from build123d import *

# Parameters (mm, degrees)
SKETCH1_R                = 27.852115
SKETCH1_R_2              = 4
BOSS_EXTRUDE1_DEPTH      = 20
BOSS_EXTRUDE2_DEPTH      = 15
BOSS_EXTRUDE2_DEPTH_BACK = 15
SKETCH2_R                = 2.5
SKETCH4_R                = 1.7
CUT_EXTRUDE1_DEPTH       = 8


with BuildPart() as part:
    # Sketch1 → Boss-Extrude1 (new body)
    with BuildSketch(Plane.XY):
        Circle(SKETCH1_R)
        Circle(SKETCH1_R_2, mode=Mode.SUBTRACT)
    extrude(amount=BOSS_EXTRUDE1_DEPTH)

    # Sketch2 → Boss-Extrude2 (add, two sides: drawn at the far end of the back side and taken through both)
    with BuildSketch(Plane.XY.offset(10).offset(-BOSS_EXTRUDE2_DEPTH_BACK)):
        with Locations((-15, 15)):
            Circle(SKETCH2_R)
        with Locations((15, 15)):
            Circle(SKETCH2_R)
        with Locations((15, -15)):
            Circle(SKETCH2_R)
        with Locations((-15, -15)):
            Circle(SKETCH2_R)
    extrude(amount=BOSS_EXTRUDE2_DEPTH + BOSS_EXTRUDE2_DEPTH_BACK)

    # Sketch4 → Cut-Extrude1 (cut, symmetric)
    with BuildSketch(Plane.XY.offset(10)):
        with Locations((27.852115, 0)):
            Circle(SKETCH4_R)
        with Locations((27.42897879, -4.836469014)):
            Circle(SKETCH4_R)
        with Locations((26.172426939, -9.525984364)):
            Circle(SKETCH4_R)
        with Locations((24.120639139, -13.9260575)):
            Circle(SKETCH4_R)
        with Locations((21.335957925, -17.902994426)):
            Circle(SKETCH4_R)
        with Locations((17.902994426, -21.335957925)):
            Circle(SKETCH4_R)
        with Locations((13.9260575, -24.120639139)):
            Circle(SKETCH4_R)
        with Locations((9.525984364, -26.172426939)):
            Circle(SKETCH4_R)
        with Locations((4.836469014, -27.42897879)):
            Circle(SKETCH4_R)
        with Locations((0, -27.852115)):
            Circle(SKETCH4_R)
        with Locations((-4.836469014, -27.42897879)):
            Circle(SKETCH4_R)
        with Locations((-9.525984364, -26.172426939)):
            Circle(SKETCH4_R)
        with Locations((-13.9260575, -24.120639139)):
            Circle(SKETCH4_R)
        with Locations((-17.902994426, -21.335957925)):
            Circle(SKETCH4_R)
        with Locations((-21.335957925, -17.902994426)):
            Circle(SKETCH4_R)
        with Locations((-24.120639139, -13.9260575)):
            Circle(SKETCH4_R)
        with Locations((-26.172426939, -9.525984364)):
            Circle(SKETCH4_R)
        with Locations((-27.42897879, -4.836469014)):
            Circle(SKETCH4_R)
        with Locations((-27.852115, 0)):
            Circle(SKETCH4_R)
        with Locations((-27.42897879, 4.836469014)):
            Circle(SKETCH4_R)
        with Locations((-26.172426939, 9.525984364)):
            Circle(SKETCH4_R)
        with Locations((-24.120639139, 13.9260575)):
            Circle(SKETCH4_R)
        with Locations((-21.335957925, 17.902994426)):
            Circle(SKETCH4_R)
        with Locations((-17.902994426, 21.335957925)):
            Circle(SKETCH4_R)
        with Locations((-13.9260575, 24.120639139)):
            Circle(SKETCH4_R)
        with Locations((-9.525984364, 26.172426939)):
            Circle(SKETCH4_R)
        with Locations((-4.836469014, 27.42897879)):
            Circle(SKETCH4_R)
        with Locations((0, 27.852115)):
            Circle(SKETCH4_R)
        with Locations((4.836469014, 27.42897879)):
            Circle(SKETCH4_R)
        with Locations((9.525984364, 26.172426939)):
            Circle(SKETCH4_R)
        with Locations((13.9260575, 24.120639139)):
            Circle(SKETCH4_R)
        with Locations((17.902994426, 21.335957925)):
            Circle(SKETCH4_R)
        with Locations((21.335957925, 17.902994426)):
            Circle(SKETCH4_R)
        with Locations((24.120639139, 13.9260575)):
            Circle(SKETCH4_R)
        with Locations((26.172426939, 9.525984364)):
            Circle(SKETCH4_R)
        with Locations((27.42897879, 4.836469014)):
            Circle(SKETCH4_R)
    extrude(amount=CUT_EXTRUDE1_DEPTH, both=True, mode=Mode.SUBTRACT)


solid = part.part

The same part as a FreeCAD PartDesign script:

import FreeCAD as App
import Part
import Sketcher

V = App.Vector

doc = App.newDocument("Part")
body = doc.addObject("PartDesign::Body", "Body")

# Sketch on XY plane
sketch1 = body.newObject("Sketcher::SketchObject", "Sketch")
sketch1.AttachmentSupport = (doc.getObject("XY_Plane"), [""])
sketch1.MapMode = "FlatFace"
sketch1.addGeometry(Part.Circle(V(0, 0, 0), V(0, 0, 1), 27.9), False)
sketch1.addGeometry(Part.Circle(V(0, 0, 0), V(0, 0, 1), 4), False)
sketch1.addConstraint(Sketcher.Constraint("Coincident", 0, 3, -1, 1))
sketch1.addConstraint(Sketcher.Constraint("Coincident", 1, 3, -1, 1))
sketch1.addConstraint(Sketcher.Constraint("Diameter", 1, 8.0))
sketch1.addConstraint(Sketcher.Constraint("Diameter", 0, 55.70423))
pad1 = body.newObject("PartDesign::Pad", "Pad")
pad1.Profile = sketch1
pad1.Length = 20

# Sketch on XY plane
sketch2 = body.newObject("Sketcher::SketchObject", "Sketch001")
sketch2.AttachmentSupport = (doc.getObject("XY_Plane"), [""])
sketch2.MapMode = "FlatFace"
sketch2.AttachmentOffset = App.Placement(V(0, 0, 10), App.Rotation())
sketch2.addGeometry(Part.Circle(V(-15, 15, 0), V(0, 0, 1), 2.5), False)
sketch2.addGeometry(Part.Circle(V(15, 15, 0), V(0, 0, 1), 2.5), False)
sketch2.addGeometry(Part.Circle(V(15, -15, 0), V(0, 0, 1), 2.5), False)
sketch2.addGeometry(Part.Circle(V(-15, -15, 0), V(0, 0, 1), 2.5), False)
sketch2.addConstraint(Sketcher.Constraint("Equal", 0, 1))
sketch2.addConstraint(Sketcher.Constraint("Equal", 1, 2))
sketch2.addConstraint(Sketcher.Constraint("Equal", 2, 3))
sketch2.addConstraint(Sketcher.Constraint("Symmetric", 0, 3, 2, 3, -1, 1))
sketch2.addConstraint(Sketcher.Constraint("Symmetric", 1, 3, 3, 3, -1, 1))
sketch2.addConstraint(Sketcher.Constraint("Symmetric", 0, 3, 1, 3, -2))
sketch2.addConstraint(Sketcher.Constraint("Diameter", 0, 5.0))
sketch2.addConstraint(Sketcher.Constraint("DistanceX", 0, 3, -1, 1, 15.0))
sketch2.addConstraint(Sketcher.Constraint("DistanceY", -1, 1, 0, 3, 15.0))
pad2 = body.newObject("PartDesign::Pad", "Pad001")
pad2.Profile = sketch2
pad2.Type = "TwoLengths"
pad2.Length = 15
pad2.Length2 = 15

# Sketch on XY plane
sketch3 = body.newObject("Sketcher::SketchObject", "Sketch002")
sketch3.AttachmentSupport = (doc.getObject("XY_Plane"), [""])
sketch3.MapMode = "FlatFace"
sketch3.AttachmentOffset = App.Placement(V(0, 0, 10), App.Rotation())
sketch3.addGeometry(Part.Circle(V(27.9, 0, 0), V(0, 0, 1), 1.7), False)
sketch3.addGeometry(Part.Circle(V(27.4, -4.8, 0), V(0, 0, 1), 1.7), False)
sketch3.addGeometry(Part.Circle(V(26.2, -9.5, 0), V(0, 0, 1), 1.7), False)
sketch3.addGeometry(Part.Circle(V(24.1, -13.9, 0), V(0, 0, 1), 1.7), False)
sketch3.addGeometry(Part.Circle(V(21.3, -17.9, 0), V(0, 0, 1), 1.7), False)
sketch3.addGeometry(Part.Circle(V(17.9, -21.3, 0), V(0, 0, 1), 1.7), False)
sketch3.addGeometry(Part.Circle(V(13.9, -24.1, 0), V(0, 0, 1), 1.7), False)
sketch3.addGeometry(Part.Circle(V(9.5, -26.2, 0), V(0, 0, 1), 1.7), False)
sketch3.addGeometry(Part.Circle(V(4.8, -27.4, 0), V(0, 0, 1), 1.7), False)
sketch3.addGeometry(Part.Circle(V(0, -27.9, 0), V(0, 0, 1), 1.7), False)
sketch3.addGeometry(Part.Circle(V(-4.8, -27.4, 0), V(0, 0, 1), 1.7), False)
sketch3.addGeometry(Part.Circle(V(-9.5, -26.2, 0), V(0, 0, 1), 1.7), False)
sketch3.addGeometry(Part.Circle(V(-13.9, -24.1, 0), V(0, 0, 1), 1.7), False)
sketch3.addGeometry(Part.Circle(V(-17.9, -21.3, 0), V(0, 0, 1), 1.7), False)
sketch3.addGeometry(Part.Circle(V(-21.3, -17.9, 0), V(0, 0, 1), 1.7), False)
sketch3.addGeometry(Part.Circle(V(-24.1, -13.9, 0), V(0, 0, 1), 1.7), False)
sketch3.addGeometry(Part.Circle(V(-26.2, -9.5, 0), V(0, 0, 1), 1.7), False)
sketch3.addGeometry(Part.Circle(V(-27.4, -4.8, 0), V(0, 0, 1), 1.7), False)
sketch3.addGeometry(Part.Circle(V(-27.9, 0, 0), V(0, 0, 1), 1.7), False)
sketch3.addGeometry(Part.Circle(V(-27.4, 4.8, 0), V(0, 0, 1), 1.7), False)
sketch3.addGeometry(Part.Circle(V(-26.2, 9.5, 0), V(0, 0, 1), 1.7), False)
sketch3.addGeometry(Part.Circle(V(-24.1, 13.9, 0), V(0, 0, 1), 1.7), False)
sketch3.addGeometry(Part.Circle(V(-21.3, 17.9, 0), V(0, 0, 1), 1.7), False)
sketch3.addGeometry(Part.Circle(V(-17.9, 21.3, 0), V(0, 0, 1), 1.7), False)
sketch3.addGeometry(Part.Circle(V(-13.9, 24.1, 0), V(0, 0, 1), 1.7), False)
sketch3.addGeometry(Part.Circle(V(-9.5, 26.2, 0), V(0, 0, 1), 1.7), False)
sketch3.addGeometry(Part.Circle(V(-4.8, 27.4, 0), V(0, 0, 1), 1.7), False)
sketch3.addGeometry(Part.Circle(V(0, 27.9, 0), V(0, 0, 1), 1.7), False)
sketch3.addGeometry(Part.Circle(V(4.8, 27.4, 0), V(0, 0, 1), 1.7), False)
sketch3.addGeometry(Part.Circle(V(9.5, 26.2, 0), V(0, 0, 1), 1.7), False)
sketch3.addGeometry(Part.Circle(V(13.9, 24.1, 0), V(0, 0, 1), 1.7), False)
sketch3.addGeometry(Part.Circle(V(17.9, 21.3, 0), V(0, 0, 1), 1.7), False)
sketch3.addGeometry(Part.Circle(V(21.3, 17.9, 0), V(0, 0, 1), 1.7), False)
sketch3.addGeometry(Part.Circle(V(24.1, 13.9, 0), V(0, 0, 1), 1.7), False)
sketch3.addGeometry(Part.Circle(V(26.2, 9.5, 0), V(0, 0, 1), 1.7), False)
sketch3.addGeometry(Part.Circle(V(27.4, 4.8, 0), V(0, 0, 1), 1.7), False)
sketch3.addConstraint(Sketcher.Constraint("Equal", 0, 1))
sketch3.addConstraint(Sketcher.Constraint("Equal", 1, 2))
sketch3.addConstraint(Sketcher.Constraint("Equal", 2, 3))
sketch3.addConstraint(Sketcher.Constraint("Equal", 3, 4))
sketch3.addConstraint(Sketcher.Constraint("Equal", 4, 5))
sketch3.addConstraint(Sketcher.Constraint("Equal", 5, 6))
sketch3.addConstraint(Sketcher.Constraint("Equal", 6, 7))
sketch3.addConstraint(Sketcher.Constraint("Equal", 7, 8))
sketch3.addConstraint(Sketcher.Constraint("Equal", 8, 9))
sketch3.addConstraint(Sketcher.Constraint("Equal", 9, 10))
sketch3.addConstraint(Sketcher.Constraint("Equal", 10, 11))
sketch3.addConstraint(Sketcher.Constraint("Equal", 11, 12))
sketch3.addConstraint(Sketcher.Constraint("Equal", 12, 13))
sketch3.addConstraint(Sketcher.Constraint("Equal", 13, 14))
sketch3.addConstraint(Sketcher.Constraint("Equal", 14, 15))
sketch3.addConstraint(Sketcher.Constraint("Equal", 15, 16))
sketch3.addConstraint(Sketcher.Constraint("Equal", 16, 17))
sketch3.addConstraint(Sketcher.Constraint("Equal", 17, 18))
sketch3.addConstraint(Sketcher.Constraint("Equal", 18, 19))
sketch3.addConstraint(Sketcher.Constraint("Equal", 19, 20))
sketch3.addConstraint(Sketcher.Constraint("Equal", 20, 21))
sketch3.addConstraint(Sketcher.Constraint("Equal", 21, 22))
sketch3.addConstraint(Sketcher.Constraint("Equal", 22, 23))
sketch3.addConstraint(Sketcher.Constraint("Equal", 23, 24))
sketch3.addConstraint(Sketcher.Constraint("Equal", 24, 25))
sketch3.addConstraint(Sketcher.Constraint("Equal", 25, 26))
sketch3.addConstraint(Sketcher.Constraint("Equal", 26, 27))
sketch3.addConstraint(Sketcher.Constraint("Equal", 27, 28))
sketch3.addConstraint(Sketcher.Constraint("Equal", 28, 29))
sketch3.addConstraint(Sketcher.Constraint("Equal", 29, 30))
sketch3.addConstraint(Sketcher.Constraint("Equal", 30, 31))
sketch3.addConstraint(Sketcher.Constraint("Equal", 31, 32))
sketch3.addConstraint(Sketcher.Constraint("Equal", 32, 33))
sketch3.addConstraint(Sketcher.Constraint("Equal", 33, 34))
sketch3.addConstraint(Sketcher.Constraint("Equal", 34, 35))
sketch3.addConstraint(Sketcher.Constraint("Symmetric", 0, 3, 18, 3, -1, 1))
sketch3.addConstraint(Sketcher.Constraint("Symmetric", 1, 3, 19, 3, -1, 1))
sketch3.addConstraint(Sketcher.Constraint("Symmetric", 2, 3, 20, 3, -1, 1))
sketch3.addConstraint(Sketcher.Constraint("Symmetric", 3, 3, 21, 3, -1, 1))
sketch3.addConstraint(Sketcher.Constraint("Symmetric", 4, 3, 22, 3, -1, 1))
sketch3.addConstraint(Sketcher.Constraint("Symmetric", 5, 3, 23, 3, -1, 1))
sketch3.addConstraint(Sketcher.Constraint("Symmetric", 6, 3, 24, 3, -1, 1))
sketch3.addConstraint(Sketcher.Constraint("Symmetric", 7, 3, 25, 3, -1, 1))
sketch3.addConstraint(Sketcher.Constraint("Symmetric", 8, 3, 26, 3, -1, 1))
sketch3.addConstraint(Sketcher.Constraint("Symmetric", 9, 3, 27, 3, -1, 1))
sketch3.addConstraint(Sketcher.Constraint("Symmetric", 10, 3, 28, 3, -1, 1))
sketch3.addConstraint(Sketcher.Constraint("Symmetric", 11, 3, 29, 3, -1, 1))
sketch3.addConstraint(Sketcher.Constraint("Symmetric", 12, 3, 30, 3, -1, 1))
sketch3.addConstraint(Sketcher.Constraint("Symmetric", 13, 3, 31, 3, -1, 1))
sketch3.addConstraint(Sketcher.Constraint("Symmetric", 14, 3, 32, 3, -1, 1))
sketch3.addConstraint(Sketcher.Constraint("Symmetric", 15, 3, 33, 3, -1, 1))
sketch3.addConstraint(Sketcher.Constraint("Symmetric", 16, 3, 34, 3, -1, 1))
sketch3.addConstraint(Sketcher.Constraint("Symmetric", 17, 3, 35, 3, -1, 1))
sketch3.addConstraint(Sketcher.Constraint("Symmetric", 8, 3, 10, 3, -2))
sketch3.addConstraint(Sketcher.Constraint("Symmetric", 7, 3, 11, 3, -2))
sketch3.addConstraint(Sketcher.Constraint("Symmetric", 6, 3, 12, 3, -2))
sketch3.addConstraint(Sketcher.Constraint("Symmetric", 5, 3, 13, 3, -2))
sketch3.addConstraint(Sketcher.Constraint("Symmetric", 4, 3, 14, 3, -2))
sketch3.addConstraint(Sketcher.Constraint("Symmetric", 3, 3, 15, 3, -2))
sketch3.addConstraint(Sketcher.Constraint("Symmetric", 2, 3, 16, 3, -2))
sketch3.addConstraint(Sketcher.Constraint("Symmetric", 1, 3, 17, 3, -2))
sketch3.addConstraint(Sketcher.Constraint("PointOnObject", 0, 3, -1))
sketch3.addConstraint(Sketcher.Constraint("PointOnObject", 9, 3, -2))
sketch3.addConstraint(Sketcher.Constraint("Diameter", 0, 3.4))
sketch3.addConstraint(Sketcher.Constraint("DistanceY", 5, 3, 3, 3, 7.4099))
sketch3.addConstraint(Sketcher.Constraint("DistanceX", 6, 3, 4, 3, 7.4099))
sketch3.addConstraint(Sketcher.Constraint("DistanceX", -1, 1, 1, 3, 27.428979))
sketch3.addConstraint(Sketcher.Constraint("DistanceY", 1, 3, -1, 1, 4.836469))
sketch3.addConstraint(Sketcher.Constraint("DistanceX", -1, 1, 3, 3, 24.120639))
sketch3.addConstraint(Sketcher.Constraint("DistanceY", 6, 3, -1, 1, 24.120639))
sketch3.addConstraint(Sketcher.Constraint("DistanceX", -1, 1, 8, 3, 4.836469))
sketch3.addConstraint(Sketcher.Constraint("DistanceY", 8, 3, -1, 1, 27.428979))
sketch3.addConstraint(Sketcher.Constraint("DistanceX", 2, 3, 1, 3, 1.256552))
sketch3.addConstraint(Sketcher.Constraint("DistanceX", 2, 3, 0, 3, 1.679688))
sketch3.addConstraint(Sketcher.Constraint("DistanceY", 3, 3, 1, 3, 9.089588))
sketch3.addConstraint(Sketcher.Constraint("DistanceX", 4, 3, 3, 3, 2.784681))
sketch3.addConstraint(Sketcher.Constraint("DistanceY", 4, 3, 2, 3, 8.37701))
sketch3.addConstraint(Sketcher.Constraint("DistanceX", 5, 3, 0, 3, 9.949121))
sketch3.addConstraint(Sketcher.Constraint("DistanceX", 7, 3, 5, 3, 8.37701))
sketch3.addConstraint(Sketcher.Constraint("DistanceY", 7, 3, 5, 3, 4.836469))
sketch3.addConstraint(Sketcher.Constraint("DistanceY", 9, 3, 7, 3, 1.679688))
sketch3.addConstraint(Sketcher.Constraint("DistanceY", 9, 3, 4, 3, 9.949121))
pocket1 = body.newObject("PartDesign::Pocket", "Pocket")
pocket1.Profile = sketch3
pocket1.Length = 16
pocket1.Midplane = True

doc.recompute()
